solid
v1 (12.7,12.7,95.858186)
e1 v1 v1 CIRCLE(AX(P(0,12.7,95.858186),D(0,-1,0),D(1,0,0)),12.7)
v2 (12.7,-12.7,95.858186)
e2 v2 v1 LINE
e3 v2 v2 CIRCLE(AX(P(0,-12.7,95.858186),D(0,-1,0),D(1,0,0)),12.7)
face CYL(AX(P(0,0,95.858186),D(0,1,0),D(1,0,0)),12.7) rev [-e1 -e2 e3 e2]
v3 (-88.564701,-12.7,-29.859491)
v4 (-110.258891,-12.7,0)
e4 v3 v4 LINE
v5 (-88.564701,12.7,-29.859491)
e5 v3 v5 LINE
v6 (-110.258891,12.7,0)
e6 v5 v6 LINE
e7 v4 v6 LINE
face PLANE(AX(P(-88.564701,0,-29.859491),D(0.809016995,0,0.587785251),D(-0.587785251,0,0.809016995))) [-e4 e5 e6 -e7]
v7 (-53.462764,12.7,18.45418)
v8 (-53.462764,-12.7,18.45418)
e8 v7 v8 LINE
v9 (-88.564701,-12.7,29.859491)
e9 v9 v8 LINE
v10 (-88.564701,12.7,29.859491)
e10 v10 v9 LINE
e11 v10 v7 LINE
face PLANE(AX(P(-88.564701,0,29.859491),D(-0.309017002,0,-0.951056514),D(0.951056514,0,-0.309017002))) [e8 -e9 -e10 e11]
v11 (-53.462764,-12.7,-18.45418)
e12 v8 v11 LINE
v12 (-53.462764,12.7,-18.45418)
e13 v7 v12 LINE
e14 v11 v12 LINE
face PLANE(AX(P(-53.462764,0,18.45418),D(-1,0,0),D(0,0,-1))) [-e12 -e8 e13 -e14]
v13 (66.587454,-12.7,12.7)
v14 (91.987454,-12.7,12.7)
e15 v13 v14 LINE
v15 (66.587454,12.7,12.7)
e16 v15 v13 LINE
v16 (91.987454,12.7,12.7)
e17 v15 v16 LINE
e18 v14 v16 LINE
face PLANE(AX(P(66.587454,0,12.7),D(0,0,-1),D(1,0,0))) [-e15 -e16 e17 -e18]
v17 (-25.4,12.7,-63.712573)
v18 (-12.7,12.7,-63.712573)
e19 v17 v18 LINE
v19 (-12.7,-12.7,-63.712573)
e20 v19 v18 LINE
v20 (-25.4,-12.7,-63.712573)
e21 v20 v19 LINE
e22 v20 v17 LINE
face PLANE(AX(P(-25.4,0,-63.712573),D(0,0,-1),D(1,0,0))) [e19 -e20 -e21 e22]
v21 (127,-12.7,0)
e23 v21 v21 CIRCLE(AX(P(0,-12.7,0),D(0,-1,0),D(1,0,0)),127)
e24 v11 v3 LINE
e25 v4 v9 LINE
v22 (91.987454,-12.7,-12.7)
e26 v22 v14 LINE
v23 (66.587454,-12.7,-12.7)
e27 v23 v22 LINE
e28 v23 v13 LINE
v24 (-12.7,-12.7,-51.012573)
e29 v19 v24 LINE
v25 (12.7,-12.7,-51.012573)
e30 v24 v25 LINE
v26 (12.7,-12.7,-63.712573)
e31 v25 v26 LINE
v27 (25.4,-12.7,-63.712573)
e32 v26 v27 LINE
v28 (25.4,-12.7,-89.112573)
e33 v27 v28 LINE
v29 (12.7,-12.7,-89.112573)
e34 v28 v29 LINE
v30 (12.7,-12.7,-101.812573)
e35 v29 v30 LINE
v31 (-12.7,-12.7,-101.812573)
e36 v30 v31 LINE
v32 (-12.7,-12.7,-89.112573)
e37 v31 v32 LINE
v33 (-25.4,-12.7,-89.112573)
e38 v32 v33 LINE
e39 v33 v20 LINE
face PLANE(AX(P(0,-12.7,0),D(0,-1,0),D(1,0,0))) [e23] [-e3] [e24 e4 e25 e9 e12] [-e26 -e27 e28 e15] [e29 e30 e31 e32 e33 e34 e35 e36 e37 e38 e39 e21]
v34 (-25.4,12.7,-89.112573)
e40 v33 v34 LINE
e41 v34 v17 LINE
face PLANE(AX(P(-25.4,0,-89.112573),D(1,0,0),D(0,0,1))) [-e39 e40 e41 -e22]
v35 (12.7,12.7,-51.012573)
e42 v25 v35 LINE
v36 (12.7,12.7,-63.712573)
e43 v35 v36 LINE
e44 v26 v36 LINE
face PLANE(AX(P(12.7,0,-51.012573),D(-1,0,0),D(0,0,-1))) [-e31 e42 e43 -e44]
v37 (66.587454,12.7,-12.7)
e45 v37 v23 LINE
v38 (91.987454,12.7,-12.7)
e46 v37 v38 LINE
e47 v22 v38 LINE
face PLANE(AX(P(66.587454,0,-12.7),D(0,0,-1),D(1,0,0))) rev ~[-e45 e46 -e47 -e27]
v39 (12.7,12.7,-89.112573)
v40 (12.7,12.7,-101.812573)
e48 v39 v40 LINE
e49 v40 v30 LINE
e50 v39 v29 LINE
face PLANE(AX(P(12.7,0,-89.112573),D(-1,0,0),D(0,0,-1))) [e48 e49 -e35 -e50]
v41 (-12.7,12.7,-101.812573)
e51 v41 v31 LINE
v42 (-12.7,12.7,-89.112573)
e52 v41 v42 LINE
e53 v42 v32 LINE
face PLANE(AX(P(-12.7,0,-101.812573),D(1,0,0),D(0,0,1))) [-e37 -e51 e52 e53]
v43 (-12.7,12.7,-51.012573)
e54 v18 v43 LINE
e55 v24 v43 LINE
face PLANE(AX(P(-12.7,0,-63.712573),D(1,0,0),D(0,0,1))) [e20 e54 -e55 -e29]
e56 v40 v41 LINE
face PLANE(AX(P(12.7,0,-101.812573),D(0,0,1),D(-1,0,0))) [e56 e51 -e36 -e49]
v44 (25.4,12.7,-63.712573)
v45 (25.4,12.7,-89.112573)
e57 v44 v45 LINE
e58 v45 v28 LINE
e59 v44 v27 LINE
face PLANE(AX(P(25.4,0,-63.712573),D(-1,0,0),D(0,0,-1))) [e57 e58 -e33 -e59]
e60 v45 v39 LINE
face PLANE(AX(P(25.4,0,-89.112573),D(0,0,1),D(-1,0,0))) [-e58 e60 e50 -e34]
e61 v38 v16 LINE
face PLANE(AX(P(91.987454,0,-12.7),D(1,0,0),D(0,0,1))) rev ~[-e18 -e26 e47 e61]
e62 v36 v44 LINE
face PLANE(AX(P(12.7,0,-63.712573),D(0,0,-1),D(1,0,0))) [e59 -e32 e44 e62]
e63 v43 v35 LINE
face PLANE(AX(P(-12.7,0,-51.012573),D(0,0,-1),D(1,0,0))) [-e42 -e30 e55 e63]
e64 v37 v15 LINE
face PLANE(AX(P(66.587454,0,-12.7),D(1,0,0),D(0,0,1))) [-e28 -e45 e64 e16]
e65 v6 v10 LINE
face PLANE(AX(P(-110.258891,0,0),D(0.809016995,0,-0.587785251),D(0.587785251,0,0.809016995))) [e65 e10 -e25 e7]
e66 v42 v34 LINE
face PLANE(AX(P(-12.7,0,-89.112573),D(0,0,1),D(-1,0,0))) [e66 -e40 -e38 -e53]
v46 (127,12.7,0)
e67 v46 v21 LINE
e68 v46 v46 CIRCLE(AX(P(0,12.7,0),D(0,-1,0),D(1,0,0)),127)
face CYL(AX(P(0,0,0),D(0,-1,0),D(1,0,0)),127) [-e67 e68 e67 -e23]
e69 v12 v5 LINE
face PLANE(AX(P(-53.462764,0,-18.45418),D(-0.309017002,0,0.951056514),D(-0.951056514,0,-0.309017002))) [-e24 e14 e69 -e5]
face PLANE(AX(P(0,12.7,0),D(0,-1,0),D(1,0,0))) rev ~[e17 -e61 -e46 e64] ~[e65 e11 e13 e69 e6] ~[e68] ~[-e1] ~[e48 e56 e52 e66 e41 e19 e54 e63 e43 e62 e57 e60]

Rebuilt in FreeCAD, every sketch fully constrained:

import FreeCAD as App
import Part
import Sketcher

V = App.Vector
Q = App.Units.Quantity


def add_polygon(sketch, points):
    """Adds a closed chain of lines whose ends are joined by coincident constraints."""
    first, n = sketch.GeometryCount, len(points)
    for a, b in zip(points, points[1:] + points[:1]):
        sketch.addGeometry(Part.LineSegment(App.Vector(*a, 0), App.Vector(*b, 0)), False)
    for i in range(n):
        sketch.addConstraint(Sketcher.Constraint("Coincident", first + i, 2, first + (i + 1) % n, 1))

doc = App.newDocument("Part")
body = doc.addObject("PartDesign::Body", "Body")

sketch1 = body.newObject("Sketcher::SketchObject", "Sketch")
sketch1.AttachmentSupport = (doc.getObject("XZ_Plane"), [""])
sketch1.MapMode = "FlatFace"
sketch1.addGeometry(Part.Circle(V(0, 0, 0), V(0, 0, 1), 127), False)
add_polygon(sketch1, [(-110.258891, 0), (-88.564701, 29.859491), (-53.462764, 18.45418), (-53.462764, -18.45418), (-88.564701, -29.859491)])
add_polygon(sketch1, [(12.7, -63.712573), (25.4, -63.712573), (25.4, -89.112573), (12.7, -89.112573), (12.7, -101.812573), (-12.7, -101.812573), (-12.7, -89.112573), (-25.4, -89.112573), (-25.4, -63.712573), (-12.7, -63.712573), (-12.7, -51.012573), (12.7, -51.012573)])
add_polygon(sketch1, [(91.987454, -12.7), (66.587454, -12.7), (66.587454, 12.7), (91.987454, 12.7)])
sketch1.addGeometry(Part.Circle(V(0, 95.858186, 0), V(0, 0, 1), 12.7), False)
sketch1.addConstraint(Sketcher.Constraint("Vertical", 3))
sketch1.addConstraint(Sketcher.Constraint("Horizontal", 6))
sketch1.addConstraint(Sketcher.Constraint("Vertical", 7))
sketch1.addConstraint(Sketcher.Constraint("Horizontal", 8))
sketch1.addConstraint(Sketcher.Constraint("Vertical", 9))
sketch1.addConstraint(Sketcher.Constraint("Horizontal", 10))
sketch1.addConstraint(Sketcher.Constraint("Vertical", 11))
sketch1.addConstraint(Sketcher.Constraint("Horizontal", 12))
sketch1.addConstraint(Sketcher.Constraint("Vertical", 13))
sketch1.addConstraint(Sketcher.Constraint("Horizontal", 14))
sketch1.addConstraint(Sketcher.Constraint("Vertical", 15))
sketch1.addConstraint(Sketcher.Constraint("Horizontal", 16))
sketch1.addConstraint(Sketcher.Constraint("Vertical", 17))
sketch1.addConstraint(Sketcher.Constraint("Horizontal", 18))
sketch1.addConstraint(Sketcher.Constraint("Vertical", 19))
sketch1.addConstraint(Sketcher.Constraint("Horizontal", 20))
sketch1.addConstraint(Sketcher.Constraint("Vertical", 21))
sketch1.addConstraint(Sketcher.Constraint("Coincident", 0, 3, -1, 1))
sketch1.addConstraint(Sketcher.Constraint("Symmetric", 8, 2, 11, 2, -2))
sketch1.addConstraint(Sketcher.Constraint("Symmetric", 6, 2, 13, 2, -2))
sketch1.addConstraint(Sketcher.Constraint("Symmetric", 1, 2, 4, 2, -1))
sketch1.addConstraint(Sketcher.Constraint("PointOnObject", 22, 3, -2))
sketch1.addConstraint(Sketcher.Constraint("PointOnObject", 5, 2, -1))
sketch1.addConstraint(Sketcher.Constraint("Vertical", 11, 2, 14, 2))
sketch1.addConstraint(Sketcher.Constraint("Vertical", 9, 2, 16, 2))
sketch1.addConstraint(Sketcher.Constraint("Equal", 16, 18))
sketch1.addConstraint(Sketcher.Constraint("Equal", 20, 7))
sketch1.addConstraint(Sketcher.Constraint("Equal", 14, 9))
sketch1.addConstraint(Sketcher.Constraint("Equal", 11, 15))
sketch1.addConstraint(Sketcher.Constraint("Equal", 13, 19))
sketch1.addConstraint(Sketcher.Constraint("Equal", 1, 2))
sketch1.addConstraint(Sketcher.Constraint("Equal", 2, 4))
sketch1.addConstraint(Sketcher.Constraint("Diameter", 0, Q("10 in")))
sketch1.addConstraint(Sketcher.Constraint("Diameter", 22, Q("1 in")))
sketch1.addConstraint(Sketcher.Constraint("DistanceX", 10, 2, 10, 1, Q("1 in")))
sketch1.addConstraint(Sketcher.Constraint("DistanceX", 6, 1, 6, 2, Q("0.5 in")))
sketch1.addConstraint(Sketcher.Constraint("Angle", 1, Q("54 deg")))
sketch1.addConstraint(Sketcher.Constraint("Angle", 2, Q("-18 deg")))
sketch1.addConstraint(Sketcher.Constraint("DistanceY", 18, 2, -1, 1, Q("0.5 in")))
sketch1.addConstraint(Sketcher.Constraint("DistanceY", 3, 2, 3, 1, 36.90836))
sketch1.addConstraint(Sketcher.Constraint("DistanceX", 1, 2, -1, 1, 88.564701))
sketch1.addConstraint(Sketcher.Constraint("DistanceY", -1, 1, 22, 3, 95.858186))
sketch1.addConstraint(Sketcher.Constraint("DistanceY", 6, 2, -1, 1, 63.712573))
sketch1.addConstraint(Sketcher.Constraint("DistanceX", -1, 1, 18, 2, 66.587454))
pad1 = body.newObject("PartDesign::Pad", "Pad")
pad1.Profile = sketch1
pad1.Length = Q("1 in")
pad1.Midplane = True

doc.recompute()
